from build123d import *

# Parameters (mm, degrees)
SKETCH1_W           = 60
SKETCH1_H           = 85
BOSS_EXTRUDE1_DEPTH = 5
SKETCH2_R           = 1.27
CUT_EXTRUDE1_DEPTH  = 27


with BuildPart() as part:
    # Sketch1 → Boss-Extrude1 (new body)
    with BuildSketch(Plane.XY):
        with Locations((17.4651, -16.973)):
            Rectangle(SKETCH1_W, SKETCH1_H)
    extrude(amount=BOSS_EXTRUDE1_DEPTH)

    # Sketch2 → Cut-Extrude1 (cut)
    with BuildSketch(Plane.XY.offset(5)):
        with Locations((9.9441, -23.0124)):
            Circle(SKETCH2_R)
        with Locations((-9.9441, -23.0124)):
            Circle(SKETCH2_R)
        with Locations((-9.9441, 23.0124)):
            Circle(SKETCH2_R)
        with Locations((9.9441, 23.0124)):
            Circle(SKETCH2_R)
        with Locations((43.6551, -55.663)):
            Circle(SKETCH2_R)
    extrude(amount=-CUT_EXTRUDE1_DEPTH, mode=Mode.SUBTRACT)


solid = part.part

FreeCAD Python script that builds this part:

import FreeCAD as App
import Part
import Sketcher

V = App.Vector


def add_polygon(sketch, points):
    """Adds a closed chain of lines whose ends are joined by coincident constraints."""
    first, n = sketch.GeometryCount, len(points)
    for a, b in zip(points, points[1:] + points[:1]):
        sketch.addGeometry(Part.LineSegment(App.Vector(*a, 0), App.Vector(*b, 0)), False)
    for i in range(n):
        sketch.addConstraint(Sketcher.Constraint("Coincident", first + i, 2, first + (i + 1) % n, 1))

doc = App.newDocument("Part")
params = doc.addObject("Spreadsheet::Sheet", "Params")
for row, (alias, value) in enumerate([
    ("sketch1_width", "60 mm"),
    ("sketch1_height", "85 mm"),
    ("pad1_length", "5 mm"),
    ("sketch2_diameter", "2.54 mm"),
    ("pocket1_length", "27 mm"),
], start=1):
    params.set(f"A{row}", alias)
    params.set(f"B{row}", "=" + value)
    params.setAlias(f"B{row}", alias)

body = doc.addObject("PartDesign::Body", "Body")

sketch1 = body.newObject("Sketcher::SketchObject", "Sketch")
sketch1.AttachmentSupport = (doc.getObject("XY_Plane"), [""])
sketch1.MapMode = "FlatFace"
add_polygon(sketch1, [(-13, 26), (-13, -59), (47, -59), (47, 26)])
sketch1.addConstraint(Sketcher.Constraint("Vertical", 0))
sketch1.addConstraint(Sketcher.Constraint("Horizontal", 1))
sketch1.addConstraint(Sketcher.Constraint("Vertical", 2))
sketch1.addConstraint(Sketcher.Constraint("Horizontal", 3))
sketch1.addConstraint(Sketcher.Constraint("DistanceX", 1, 1, 1, 2, 60.0))
sketch1.addConstraint(Sketcher.Constraint("DistanceY", 0, 2, 0, 1, 85.0))
sketch1.addConstraint(Sketcher.Constraint("DistanceY", 0, 2, -1, 1, 59.473))
sketch1.addConstraint(Sketcher.Constraint("DistanceX", 0, 2, -1, 1, 12.5349))
sketch1.setExpression("Constraints[8]", "Params.sketch1_width")
sketch1.setExpression("Constraints[9]", "Params.sketch1_height")
pad1 = body.newObject("PartDesign::Pad", "Pad")
pad1.Profile = sketch1
pad1.setExpression("Length", "Params.pad1_length")

sketch2 = body.newObject("Sketcher::SketchObject", "Sketch001")
sketch2.AttachmentSupport = (doc.getObject("XY_Plane"), [""])
sketch2.MapMode = "FlatFace"
sketch2.AttachmentOffset = App.Placement(V(0, 0, 5), App.Rotation())
sketch2.addGeometry(Part.Circle(V(9.9, -23, 0), V(0, 0, 1), 1.3), False)
sketch2.addGeometry(Part.Circle(V(-9.9, -23, 0), V(0, 0, 1), 1.3), False)
sketch2.addGeometry(Part.Circle(V(-9.9, 23, 0), V(0, 0, 1), 1.3), False)
sketch2.addGeometry(Part.Circle(V(9.9, 23, 0), V(0, 0, 1), 1.3), False)
sketch2.addGeometry(Part.Circle(V(43.7, -55.7, 0), V(0, 0, 1), 1.3), False)
sketch2.addConstraint(Sketcher.Constraint("Equal", 0, 1))
sketch2.addConstraint(Sketcher.Constraint("Equal", 1, 2))
sketch2.addConstraint(Sketcher.Constraint("Equal", 2, 3))
sketch2.addConstraint(Sketcher.Constraint("Equal", 3, 4))
sketch2.addConstraint(Sketcher.Constraint("Symmetric", 0, 3, 2, 3, -1, 1))
sketch2.addConstraint(Sketcher.Constraint("Symmetric", 1, 3, 3, 3, -1, 1))
sketch2.addConstraint(Sketcher.Constraint("Symmetric", 0, 3, 1, 3, -2))
sketch2.addConstraint(Sketcher.Constraint("Diameter", 0, 2.54))
sketch2.addConstraint(Sketcher.Constraint("DistanceY", 4, 3, -1, 1, 55.663))
sketch2.addConstraint(Sketcher.Constraint("DistanceX", 0, 3, 4, 3, 33.711))
sketch2.addConstraint(Sketcher.Constraint("DistanceX", -1, 1, 0, 3, 9.9441))
sketch2.addConstraint(Sketcher.Constraint("DistanceY", 0, 3, -1, 1, 23.0124))
sketch2.setExpression("Constraints[7]", "Params.sketch2_diameter")
pocket1 = body.newObject("PartDesign::Pocket", "Pocket")
pocket1.Profile = sketch2
pocket1.setExpression("Length", "Params.pocket1_length")

doc.recompute()
